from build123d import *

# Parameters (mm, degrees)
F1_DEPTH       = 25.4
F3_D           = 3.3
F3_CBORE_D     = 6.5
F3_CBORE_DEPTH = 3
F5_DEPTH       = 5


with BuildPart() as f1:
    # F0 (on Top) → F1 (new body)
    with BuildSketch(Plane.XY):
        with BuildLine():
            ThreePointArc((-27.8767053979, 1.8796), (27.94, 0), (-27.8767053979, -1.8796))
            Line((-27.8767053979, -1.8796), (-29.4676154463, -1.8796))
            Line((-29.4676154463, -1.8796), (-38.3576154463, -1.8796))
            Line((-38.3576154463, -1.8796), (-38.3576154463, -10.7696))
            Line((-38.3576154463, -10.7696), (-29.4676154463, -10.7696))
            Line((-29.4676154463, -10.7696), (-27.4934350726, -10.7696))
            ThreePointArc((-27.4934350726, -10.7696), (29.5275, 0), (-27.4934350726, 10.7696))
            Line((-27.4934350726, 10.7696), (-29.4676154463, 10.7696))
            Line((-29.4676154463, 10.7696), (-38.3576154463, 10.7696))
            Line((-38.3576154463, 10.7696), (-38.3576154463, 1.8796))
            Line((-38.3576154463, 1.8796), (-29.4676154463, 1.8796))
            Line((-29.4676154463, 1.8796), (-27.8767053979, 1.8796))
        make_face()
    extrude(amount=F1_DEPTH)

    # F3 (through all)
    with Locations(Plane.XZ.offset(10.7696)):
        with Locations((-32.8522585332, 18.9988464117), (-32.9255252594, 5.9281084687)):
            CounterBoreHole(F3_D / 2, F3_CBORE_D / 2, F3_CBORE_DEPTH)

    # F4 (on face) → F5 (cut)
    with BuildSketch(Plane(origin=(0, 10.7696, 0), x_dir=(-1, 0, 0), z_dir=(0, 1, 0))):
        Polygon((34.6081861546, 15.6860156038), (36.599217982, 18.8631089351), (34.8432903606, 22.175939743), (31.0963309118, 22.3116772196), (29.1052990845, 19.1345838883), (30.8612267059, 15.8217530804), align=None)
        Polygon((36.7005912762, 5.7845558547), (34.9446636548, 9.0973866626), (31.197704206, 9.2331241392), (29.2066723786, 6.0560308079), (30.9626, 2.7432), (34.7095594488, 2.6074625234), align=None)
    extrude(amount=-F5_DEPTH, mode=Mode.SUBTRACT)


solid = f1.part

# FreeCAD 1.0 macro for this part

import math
import FreeCAD as App
import Part
import Sketcher
Q = App.Units.Quantity


def add_polygon(sketch, points):
    """Adds a closed chain of lines whose ends are joined by coincident constraints."""
    first, n = sketch.GeometryCount, len(points)
    for a, b in zip(points, points[1:] + points[:1]):
        sketch.addGeometry(Part.LineSegment(App.Vector(*a, 0), App.Vector(*b, 0)), False)
    for i in range(n):
        sketch.addConstraint(Sketcher.Constraint("Coincident", first + i, 2, first + (i + 1) % n, 1))

doc = App.newDocument("Part")
body = doc.addObject("PartDesign::Body", "Body")

# Sketch on XY plane
sketch1 = doc.addObject("Sketcher::SketchObject", "Sketch")
body.addObject(sketch1)
sketch1.AttachmentSupport = (doc.XY_Plane, [""])
sketch1.MapMode = "FlatFace"
sketch1.addGeometry([
    Part.ArcOfCircle(Part.Circle(App.Vector(0, 0, 0), App.Vector(0, 0, 1), 27.9), math.radians(-176), math.radians(176)),  # 0
    Part.LineSegment(App.Vector(-27.9, -1.9, 0), App.Vector(-38.4, -1.9, 0)),  # 1
    Part.LineSegment(App.Vector(-38.4, -1.9, 0), App.Vector(-38.4, -10.8, 0)),  # 2
    Part.LineSegment(App.Vector(-38.4, -10.8, 0), App.Vector(-27.5, -10.8, 0)),  # 3
    Part.ArcOfCircle(Part.Circle(App.Vector(0, 0, 0), App.Vector(0, 0, 1), 29.5), math.radians(-159), math.radians(159)),  # 4
    Part.LineSegment(App.Vector(-27.5, 10.8, 0), App.Vector(-38.4, 10.8, 0)),  # 5
    Part.LineSegment(App.Vector(-38.4, 10.8, 0), App.Vector(-38.4, 1.9, 0)),  # 6
    Part.LineSegment(App.Vector(-38.4, 1.9, 0), App.Vector(-27.9, 1.9, 0)),  # 7
], False)
sketch1.addConstraint([
    Sketcher.Constraint("Coincident", 0, 1, 1, 1),
    Sketcher.Constraint("Coincident", 1, 2, 2, 1),
    Sketcher.Constraint("Coincident", 2, 2, 3, 1),
    Sketcher.Constraint("Coincident", 3, 2, 4, 1),
    Sketcher.Constraint("Coincident", 4, 2, 5, 1),
    Sketcher.Constraint("Coincident", 5, 2, 6, 1),
    Sketcher.Constraint("Coincident", 6, 2, 7, 1),
    Sketcher.Constraint("Coincident", 7, 2, 0, 2),
    Sketcher.Constraint("Horizontal", 1),
    Sketcher.Constraint("Vertical", 2),
    Sketcher.Constraint("Horizontal", 3),
    Sketcher.Constraint("Horizontal", 5),
    Sketcher.Constraint("Vertical", 6),
    Sketcher.Constraint("Horizontal", 7),
    Sketcher.Constraint("Coincident", 0, 3, -1, 1),
    Sketcher.Constraint("Coincident", 4, 3, -1, 1),
    Sketcher.Constraint("Symmetric", 2, 2, 5, 2, -1),
    Sketcher.Constraint("Vertical", 0, 1, 7, 2),
    Sketcher.Constraint("Radius", 0, Q("1.1 in")),
    Sketcher.Constraint("DistanceY", 2, 2, 2, 1, Q("0.35 in")),
    Sketcher.Constraint("Radius", 4, Q("1.1625 in")),
    Sketcher.Constraint("DistanceY", 0, 1, -1, 1, Q("0.074 in")),
    Sketcher.Constraint("DistanceX", 1, 2, 1, 1, Q("10.48091 mm")),
])
pad1 = doc.addObject("PartDesign::Pad", "Pad")
body.addObject(pad1)
pad1.Profile = sketch1
pad1.Length = Q("1 in")

# Sketch on XZ plane
sketch2 = doc.addObject("Sketcher::SketchObject", "Sketch001")
body.addObject(sketch2)
sketch2.AttachmentSupport = (doc.XZ_Plane, [""])
sketch2.MapMode = "FlatFace"
sketch2.AttachmentOffset = App.Placement(App.Vector(0, 0, 0.424 * 25.4), App.Rotation())
sketch2.addGeometry([
    Part.Circle(App.Vector(-32.9, 19, 0), App.Vector(0, 0, 1), 1.6),
    Part.Circle(App.Vector(-32.9, 5.9, 0), App.Vector(0, 0, 1), 1.6),
], False)
sketch2.addConstraint([
    Sketcher.Constraint("Equal", 0, 1),
    Sketcher.Constraint("Diameter", 0, Q("3.3 mm")),
    Sketcher.Constraint("DistanceX", 0, 3, -1, 1, Q("32.852259 mm")),
    Sketcher.Constraint("DistanceY", -1, 1, 1, 3, Q("5.928108 mm")),
    Sketcher.Constraint("DistanceY", -1, 1, 0, 3, Q("18.998846 mm")),
    Sketcher.Constraint("DistanceX", 1, 3, -1, 1, Q("32.925525 mm")),
])
doc.recompute()
hole = doc.addObject("PartDesign::Hole", "Hole")
body.addObject(hole)
hole.Profile = sketch2
hole.ThreadType = "None"
hole.Diameter = 3.3
hole.DepthType = "ThroughAll"
hole.HoleCutType = "Counterbore"
hole.HoleCutDiameter = 6.5
hole.HoleCutDepth = 3

# Sketch on XZ plane
sketch3 = doc.addObject("Sketcher::SketchObject", "Sketch002")
body.addObject(sketch3)
sketch3.AttachmentSupport = (doc.XZ_Plane, [""])
sketch3.MapMode = "FlatFace"
sketch3.AttachmentOffset = App.Placement(App.Vector(0, 0, -0.424 * 25.4), App.Rotation())
add_polygon(sketch3, [(-34.6, 15.7), (-36.6, 18.9), (-34.8, 22.2), (-31.1, 22.3), (-29.1, 19.1), (-30.9, 15.8)])  # lines 0-5
add_polygon(sketch3, [(-36.7, 5.8), (-34.9, 9.1), (-31.2, 9.2), (-29.2, 6.1), (-31, 2.7), (-34.7, 2.6)])  # lines 6-11
sketch3.addConstraint([
    Sketcher.Constraint("Parallel", 0, 3),
    Sketcher.Constraint("Parallel", 1, 4),
    Sketcher.Constraint("Parallel", 2, 5),
    Sketcher.Constraint("Parallel", 4, 6),
    Sketcher.Constraint("Parallel", 5, 7),
    Sketcher.Constraint("Parallel", 3, 8),
    Sketcher.Constraint("Parallel", 6, 9),
    Sketcher.Constraint("Parallel", 7, 10),
    Sketcher.Constraint("Parallel", 8, 11),
    Sketcher.Constraint("Equal", 0, 1),
    Sketcher.Constraint("Equal", 1, 2),
    Sketcher.Constraint("Equal", 2, 3),
    Sketcher.Constraint("Equal", 5, 6),
    Sketcher.Constraint("Equal", 6, 7),
    Sketcher.Constraint("Equal", 7, 8),
    Sketcher.Constraint("Equal", 8, 9),
    Sketcher.Constraint("DistanceX", 9, 2, -1, 1, Q("1.219 in")),
    Sketcher.Constraint("DistanceY", -1, 1, 9, 2, Q("0.108 in")),
    Sketcher.Constraint("DistanceX", 3, 2, -1, 1, Q("29.105299 mm")),
    Sketcher.Constraint("DistanceY", -1, 1, 0, 2, Q("18.863109 mm")),
    Sketcher.Constraint("DistanceX", 1, 2, -1, 1, Q("34.84329 mm")),
    Sketcher.Constraint("DistanceY", -1, 1, 1, 2, Q("22.17594 mm")),
    Sketcher.Constraint("DistanceX", 2, 2, -1, 1, Q("31.096331 mm")),
    Sketcher.Constraint("DistanceY", 0, 2, 2, 2, Q("3.448568 mm")),
])
pocket1 = doc.addObject("PartDesign::Pocket", "Pocket")
body.addObject(pocket1)
pocket1.Profile = sketch3
pocket1.Length = 5
pocket1.Reversed = True

doc.recompute()
